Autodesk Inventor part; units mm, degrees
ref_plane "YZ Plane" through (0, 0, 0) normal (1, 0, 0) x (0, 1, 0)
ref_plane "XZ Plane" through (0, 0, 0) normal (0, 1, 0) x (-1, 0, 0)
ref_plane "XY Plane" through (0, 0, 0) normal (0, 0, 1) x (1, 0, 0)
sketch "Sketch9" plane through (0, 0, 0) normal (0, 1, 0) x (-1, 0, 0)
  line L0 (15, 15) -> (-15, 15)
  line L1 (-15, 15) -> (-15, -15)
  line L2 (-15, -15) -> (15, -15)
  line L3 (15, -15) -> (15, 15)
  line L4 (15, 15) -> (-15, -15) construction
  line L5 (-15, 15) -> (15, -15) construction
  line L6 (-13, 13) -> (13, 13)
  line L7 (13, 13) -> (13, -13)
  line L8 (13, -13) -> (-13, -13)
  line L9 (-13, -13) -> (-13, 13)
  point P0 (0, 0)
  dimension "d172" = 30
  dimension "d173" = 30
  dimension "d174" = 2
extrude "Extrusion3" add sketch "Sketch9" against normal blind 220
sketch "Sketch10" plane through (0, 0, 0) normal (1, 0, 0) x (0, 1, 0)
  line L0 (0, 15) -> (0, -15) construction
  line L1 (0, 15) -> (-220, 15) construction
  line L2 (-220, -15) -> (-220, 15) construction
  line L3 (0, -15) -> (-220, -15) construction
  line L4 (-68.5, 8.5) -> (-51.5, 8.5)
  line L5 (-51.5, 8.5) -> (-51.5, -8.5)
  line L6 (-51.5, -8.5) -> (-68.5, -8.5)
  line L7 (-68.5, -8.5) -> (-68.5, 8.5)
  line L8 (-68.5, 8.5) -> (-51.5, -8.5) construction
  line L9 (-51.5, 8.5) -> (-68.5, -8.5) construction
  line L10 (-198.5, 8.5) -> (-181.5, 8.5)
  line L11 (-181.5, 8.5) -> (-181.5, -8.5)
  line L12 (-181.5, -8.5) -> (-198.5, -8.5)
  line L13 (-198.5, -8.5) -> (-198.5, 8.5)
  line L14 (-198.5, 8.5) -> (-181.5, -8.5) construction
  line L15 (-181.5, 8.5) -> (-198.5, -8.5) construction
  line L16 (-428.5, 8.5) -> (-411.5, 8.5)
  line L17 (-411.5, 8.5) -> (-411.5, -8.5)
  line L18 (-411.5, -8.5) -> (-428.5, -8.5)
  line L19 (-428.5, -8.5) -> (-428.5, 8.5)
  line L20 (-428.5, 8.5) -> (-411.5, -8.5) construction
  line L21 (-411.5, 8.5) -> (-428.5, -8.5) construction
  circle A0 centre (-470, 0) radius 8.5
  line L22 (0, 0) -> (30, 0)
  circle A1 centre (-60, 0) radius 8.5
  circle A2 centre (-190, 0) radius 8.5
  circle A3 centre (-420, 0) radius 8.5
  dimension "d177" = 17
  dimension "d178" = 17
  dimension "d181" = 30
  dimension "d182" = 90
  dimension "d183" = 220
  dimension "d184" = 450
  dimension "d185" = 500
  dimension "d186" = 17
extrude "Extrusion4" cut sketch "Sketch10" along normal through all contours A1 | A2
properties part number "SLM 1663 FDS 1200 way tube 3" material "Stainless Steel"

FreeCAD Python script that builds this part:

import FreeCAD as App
import Part
import Sketcher

V = App.Vector


def add_polygon(sketch, points):
    """Adds a closed chain of lines whose ends are joined by coincident constraints."""
    first, n = sketch.GeometryCount, len(points)
    for a, b in zip(points, points[1:] + points[:1]):
        sketch.addGeometry(Part.LineSegment(App.Vector(*a, 0), App.Vector(*b, 0)), False)
    for i in range(n):
        sketch.addConstraint(Sketcher.Constraint("Coincident", first + i, 2, first + (i + 1) % n, 1))

doc = App.newDocument("Part")
body = doc.addObject("PartDesign::Body", "Body")

# Sketch on XZ plane
sketch1 = body.newObject("Sketcher::SketchObject", "Sketch")
sketch1.AttachmentSupport = (doc.getObject("XZ_Plane"), [""])
sketch1.MapMode = "FlatFace"
add_polygon(sketch1, [(-15, -15), (-15, 15), (15, 15), (15, -15)])  # lines 0-3
add_polygon(sketch1, [(13, -13), (13, 13), (-13, 13), (-13, -13)])  # lines 4-7
sketch1.addConstraint([
    Sketcher.Constraint("Vertical", 0),
    Sketcher.Constraint("Horizontal", 1),
    Sketcher.Constraint("Vertical", 2),
    Sketcher.Constraint("Horizontal", 3),
    Sketcher.Constraint("Vertical", 4),
    Sketcher.Constraint("Horizontal", 5),
    Sketcher.Constraint("Vertical", 6),
    Sketcher.Constraint("Horizontal", 7),
    Sketcher.Constraint("Symmetric", 0, 2, 2, 2, -1, 1),
    Sketcher.Constraint("Symmetric", 4, 2, 6, 2, -1, 1),
    Sketcher.Constraint("Equal", 3, 0),
    Sketcher.Constraint("Equal", 7, 4),
    Sketcher.Constraint("DistanceX", 1, 1, 1, 2, 30.0),
    Sketcher.Constraint("DistanceX", 4, 2, 1, 2, 2.0),
])
pad1 = body.newObject("PartDesign::Pad", "Pad")
pad1.Profile = sketch1
pad1.Length = 220

# Sketch on YZ plane
sketch2 = body.newObject("Sketcher::SketchObject", "Sketch001")
sketch2.AttachmentSupport = (doc.getObject("YZ_Plane"), [""])
sketch2.MapMode = "FlatFace"
sketch2.addGeometry([
    Part.Circle(V(-60, 0, 0), V(0, 0, 1), 8),
    Part.Circle(V(-190, 0, 0), V(0, 0, 1), 8),
], False)
sketch2.addConstraint([
    Sketcher.Constraint("Equal", 0, 1),
    Sketcher.Constraint("PointOnObject", 0, 3, -1),
    Sketcher.Constraint("PointOnObject", 1, 3, -1),
    Sketcher.Constraint("Diameter", 0, 17.0),
    Sketcher.Constraint("DistanceX", 0, 3, -1, 1, 60.0),
    Sketcher.Constraint("DistanceX", 1, 3, -1, 1, 190.0),
])
pocket1 = body.newObject("PartDesign::Pocket", "Pocket")
pocket1.Profile = sketch2
pocket1.Type = "ThroughAll"
pocket1.Reversed = True

doc.recompute()
